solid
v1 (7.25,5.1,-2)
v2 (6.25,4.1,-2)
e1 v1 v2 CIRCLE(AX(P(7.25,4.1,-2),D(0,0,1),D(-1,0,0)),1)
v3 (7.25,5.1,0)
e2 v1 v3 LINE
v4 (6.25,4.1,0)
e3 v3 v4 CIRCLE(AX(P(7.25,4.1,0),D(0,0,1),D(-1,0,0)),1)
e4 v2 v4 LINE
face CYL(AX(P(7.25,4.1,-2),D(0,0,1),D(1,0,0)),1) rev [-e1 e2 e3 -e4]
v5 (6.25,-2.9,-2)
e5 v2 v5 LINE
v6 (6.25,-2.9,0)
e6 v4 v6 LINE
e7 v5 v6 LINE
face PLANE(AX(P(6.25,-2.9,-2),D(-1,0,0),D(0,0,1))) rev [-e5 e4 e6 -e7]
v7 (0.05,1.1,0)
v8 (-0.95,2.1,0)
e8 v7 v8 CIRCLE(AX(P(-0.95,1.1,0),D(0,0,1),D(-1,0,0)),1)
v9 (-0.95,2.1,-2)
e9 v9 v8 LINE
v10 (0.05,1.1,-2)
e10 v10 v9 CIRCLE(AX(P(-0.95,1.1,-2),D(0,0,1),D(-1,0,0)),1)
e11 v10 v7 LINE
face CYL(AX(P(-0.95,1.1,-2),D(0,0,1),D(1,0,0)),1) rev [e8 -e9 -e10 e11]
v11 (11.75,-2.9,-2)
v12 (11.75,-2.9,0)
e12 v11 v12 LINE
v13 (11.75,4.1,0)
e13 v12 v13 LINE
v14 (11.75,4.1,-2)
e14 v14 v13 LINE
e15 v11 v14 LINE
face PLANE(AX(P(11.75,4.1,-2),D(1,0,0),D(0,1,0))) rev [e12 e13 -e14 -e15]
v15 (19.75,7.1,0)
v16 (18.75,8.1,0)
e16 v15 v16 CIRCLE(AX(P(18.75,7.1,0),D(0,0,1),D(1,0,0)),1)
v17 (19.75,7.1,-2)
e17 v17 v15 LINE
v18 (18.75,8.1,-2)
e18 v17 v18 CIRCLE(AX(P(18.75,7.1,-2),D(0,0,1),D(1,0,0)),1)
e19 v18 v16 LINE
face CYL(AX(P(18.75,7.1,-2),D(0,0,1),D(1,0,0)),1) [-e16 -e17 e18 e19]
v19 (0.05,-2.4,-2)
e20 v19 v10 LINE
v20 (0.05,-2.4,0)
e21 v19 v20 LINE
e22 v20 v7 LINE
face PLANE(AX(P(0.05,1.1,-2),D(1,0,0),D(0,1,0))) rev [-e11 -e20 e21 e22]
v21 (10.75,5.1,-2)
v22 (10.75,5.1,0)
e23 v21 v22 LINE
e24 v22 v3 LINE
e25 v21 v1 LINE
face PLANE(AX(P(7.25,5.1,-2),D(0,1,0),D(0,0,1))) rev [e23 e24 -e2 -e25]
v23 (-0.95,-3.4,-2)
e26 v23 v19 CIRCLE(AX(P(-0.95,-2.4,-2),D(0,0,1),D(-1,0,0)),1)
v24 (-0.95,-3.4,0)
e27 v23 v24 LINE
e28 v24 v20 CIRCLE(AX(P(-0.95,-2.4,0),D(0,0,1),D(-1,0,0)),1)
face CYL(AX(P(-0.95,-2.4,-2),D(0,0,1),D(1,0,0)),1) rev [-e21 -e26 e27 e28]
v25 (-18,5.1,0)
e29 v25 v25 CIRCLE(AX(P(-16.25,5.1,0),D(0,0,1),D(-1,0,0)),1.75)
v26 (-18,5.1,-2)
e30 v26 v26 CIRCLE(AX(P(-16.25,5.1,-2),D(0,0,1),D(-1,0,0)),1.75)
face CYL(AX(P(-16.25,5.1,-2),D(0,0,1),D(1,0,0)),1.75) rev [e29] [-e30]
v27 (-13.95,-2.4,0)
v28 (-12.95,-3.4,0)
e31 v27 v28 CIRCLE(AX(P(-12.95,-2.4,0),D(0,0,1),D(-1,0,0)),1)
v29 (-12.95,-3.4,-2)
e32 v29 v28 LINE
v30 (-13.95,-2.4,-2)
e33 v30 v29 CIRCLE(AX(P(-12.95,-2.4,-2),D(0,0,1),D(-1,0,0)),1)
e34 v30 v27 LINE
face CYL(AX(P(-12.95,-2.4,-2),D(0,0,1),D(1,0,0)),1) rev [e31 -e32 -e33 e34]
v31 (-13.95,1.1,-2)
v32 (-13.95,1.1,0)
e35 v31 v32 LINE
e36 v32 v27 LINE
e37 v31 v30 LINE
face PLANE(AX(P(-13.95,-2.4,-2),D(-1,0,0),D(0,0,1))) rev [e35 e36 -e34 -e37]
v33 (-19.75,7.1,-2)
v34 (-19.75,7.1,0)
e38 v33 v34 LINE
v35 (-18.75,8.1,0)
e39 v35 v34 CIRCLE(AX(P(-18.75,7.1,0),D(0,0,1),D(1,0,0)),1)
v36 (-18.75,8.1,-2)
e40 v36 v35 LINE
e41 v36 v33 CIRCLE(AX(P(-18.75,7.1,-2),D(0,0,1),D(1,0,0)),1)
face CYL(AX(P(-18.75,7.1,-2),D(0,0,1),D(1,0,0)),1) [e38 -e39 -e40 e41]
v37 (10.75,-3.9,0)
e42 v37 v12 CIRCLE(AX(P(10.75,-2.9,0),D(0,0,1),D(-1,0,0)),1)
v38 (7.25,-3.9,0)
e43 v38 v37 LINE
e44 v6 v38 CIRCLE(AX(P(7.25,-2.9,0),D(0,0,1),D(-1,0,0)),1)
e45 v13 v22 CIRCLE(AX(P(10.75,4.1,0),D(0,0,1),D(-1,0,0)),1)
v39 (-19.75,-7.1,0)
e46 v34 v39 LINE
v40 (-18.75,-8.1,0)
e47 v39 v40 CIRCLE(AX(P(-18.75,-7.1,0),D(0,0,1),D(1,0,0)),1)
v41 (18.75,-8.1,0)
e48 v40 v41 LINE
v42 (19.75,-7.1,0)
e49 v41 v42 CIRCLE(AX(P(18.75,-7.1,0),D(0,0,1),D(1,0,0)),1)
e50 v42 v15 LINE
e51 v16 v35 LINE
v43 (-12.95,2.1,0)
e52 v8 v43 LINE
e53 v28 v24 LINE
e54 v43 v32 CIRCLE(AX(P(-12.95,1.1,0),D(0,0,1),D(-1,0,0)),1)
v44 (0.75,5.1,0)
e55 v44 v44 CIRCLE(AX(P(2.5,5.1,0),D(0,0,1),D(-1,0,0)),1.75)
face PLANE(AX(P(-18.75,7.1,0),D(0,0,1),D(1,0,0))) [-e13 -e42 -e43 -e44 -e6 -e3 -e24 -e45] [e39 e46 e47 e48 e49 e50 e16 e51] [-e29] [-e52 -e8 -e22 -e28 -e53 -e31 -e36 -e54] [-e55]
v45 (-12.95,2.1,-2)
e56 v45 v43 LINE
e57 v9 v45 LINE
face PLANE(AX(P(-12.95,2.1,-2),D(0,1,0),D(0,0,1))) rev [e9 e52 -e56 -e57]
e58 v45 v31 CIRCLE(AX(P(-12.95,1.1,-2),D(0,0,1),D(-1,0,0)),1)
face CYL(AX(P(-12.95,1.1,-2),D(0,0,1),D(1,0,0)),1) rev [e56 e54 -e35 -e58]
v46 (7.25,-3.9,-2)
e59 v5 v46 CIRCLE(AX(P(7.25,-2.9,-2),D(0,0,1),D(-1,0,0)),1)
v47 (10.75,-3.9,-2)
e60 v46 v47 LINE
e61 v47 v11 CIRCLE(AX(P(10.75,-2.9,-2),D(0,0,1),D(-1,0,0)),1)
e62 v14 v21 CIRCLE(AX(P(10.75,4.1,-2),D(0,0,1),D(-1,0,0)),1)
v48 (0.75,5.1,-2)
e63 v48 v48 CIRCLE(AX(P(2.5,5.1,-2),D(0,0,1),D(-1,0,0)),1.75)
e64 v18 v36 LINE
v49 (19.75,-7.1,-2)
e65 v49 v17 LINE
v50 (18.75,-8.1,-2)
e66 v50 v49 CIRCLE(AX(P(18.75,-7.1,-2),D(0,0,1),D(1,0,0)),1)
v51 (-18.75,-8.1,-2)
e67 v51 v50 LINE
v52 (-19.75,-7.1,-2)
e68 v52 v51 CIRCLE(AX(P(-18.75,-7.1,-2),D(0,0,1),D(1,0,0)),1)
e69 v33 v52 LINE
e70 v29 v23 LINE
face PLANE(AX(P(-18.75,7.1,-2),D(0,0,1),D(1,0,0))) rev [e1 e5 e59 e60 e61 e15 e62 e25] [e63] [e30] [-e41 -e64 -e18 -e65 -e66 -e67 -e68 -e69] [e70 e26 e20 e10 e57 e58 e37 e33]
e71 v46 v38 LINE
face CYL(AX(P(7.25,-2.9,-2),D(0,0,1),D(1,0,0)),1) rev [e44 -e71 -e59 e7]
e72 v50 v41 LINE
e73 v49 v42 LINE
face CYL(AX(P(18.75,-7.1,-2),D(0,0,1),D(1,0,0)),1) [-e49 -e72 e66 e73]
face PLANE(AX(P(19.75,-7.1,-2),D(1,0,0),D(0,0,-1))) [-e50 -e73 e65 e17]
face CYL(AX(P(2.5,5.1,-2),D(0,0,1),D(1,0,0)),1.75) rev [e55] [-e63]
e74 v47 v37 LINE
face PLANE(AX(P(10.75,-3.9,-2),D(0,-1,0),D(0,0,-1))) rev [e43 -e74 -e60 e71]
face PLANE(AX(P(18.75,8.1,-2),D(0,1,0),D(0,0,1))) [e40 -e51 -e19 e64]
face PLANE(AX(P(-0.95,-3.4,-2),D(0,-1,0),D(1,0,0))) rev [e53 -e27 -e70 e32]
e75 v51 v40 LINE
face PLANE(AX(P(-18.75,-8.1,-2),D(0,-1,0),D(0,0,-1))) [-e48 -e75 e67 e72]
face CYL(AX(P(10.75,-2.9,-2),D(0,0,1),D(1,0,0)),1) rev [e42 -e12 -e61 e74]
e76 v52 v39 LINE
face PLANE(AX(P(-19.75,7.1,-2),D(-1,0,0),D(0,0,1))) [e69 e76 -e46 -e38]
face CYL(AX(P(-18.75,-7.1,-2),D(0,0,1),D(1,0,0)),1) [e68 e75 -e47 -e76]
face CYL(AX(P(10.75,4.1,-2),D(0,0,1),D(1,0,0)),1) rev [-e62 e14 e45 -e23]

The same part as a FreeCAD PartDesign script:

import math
import FreeCAD as App
import Part
import Sketcher
Q = App.Units.Quantity

doc = App.newDocument("Part")
body = doc.addObject("PartDesign::Body", "Body")

# Sketch on XY plane
sketch1 = body.newObject("Sketcher::SketchObject", "Sketch")
sketch1.AttachmentSupport = (doc.getObject("XY_Plane"), [""])
sketch1.MapMode = "FlatFace"
sketch1.addGeometry(Part.LineSegment(App.Vector(-19.8, 7.1, 0), App.Vector(-19.8, -7.1, 0)), False)
sketch1.addGeometry(Part.ArcOfCircle(Part.Circle(App.Vector(-18.7, -7.1, 0), App.Vector(0, 0, 1), 1), math.radians(-180), math.radians(-90)), False)
sketch1.addGeometry(Part.LineSegment(App.Vector(-18.8, -8.1, 0), App.Vector(18.8, -8.1, 0)), False)
sketch1.addGeometry(Part.ArcOfCircle(Part.Circle(App.Vector(18.7, -7.1, 0), App.Vector(0, 0, 1), 1), math.radians(-90), math.radians(0)), False)
sketch1.addGeometry(Part.LineSegment(App.Vector(19.8, -7.1, 0), App.Vector(19.8, 7.1, 0)), False)
sketch1.addGeometry(Part.ArcOfCircle(Part.Circle(App.Vector(18.7, 7.1, 0), App.Vector(0, 0, 1), 1), math.radians(0), math.radians(90)), False)
sketch1.addGeometry(Part.LineSegment(App.Vector(18.8, 8.1, 0), App.Vector(-18.8, 8.1, 0)), False)
sketch1.addGeometry(Part.ArcOfCircle(Part.Circle(App.Vector(-18.7, 7.1, 0), App.Vector(0, 0, 1), 1), math.radians(90), math.radians(180)), False)
sketch1.addGeometry(Part.ArcOfCircle(Part.Circle(App.Vector(-12.9, 1.1, 0), App.Vector(0, 0, 1), 1), math.radians(90), math.radians(180)), False)
sketch1.addGeometry(Part.LineSegment(App.Vector(-12.9, 2.1, 0), App.Vector(-0.9, 2.1, 0)), False)
sketch1.addGeometry(Part.ArcOfCircle(Part.Circle(App.Vector(-1, 1.1, 0), App.Vector(0, 0, 1), 1), math.radians(0), math.radians(90)), False)
sketch1.addGeometry(Part.LineSegment(App.Vector(0.1, 1.1, 0), App.Vector(0.1, -2.4, 0)), False)
sketch1.addGeometry(Part.ArcOfCircle(Part.Circle(App.Vector(-1, -2.4, 0), App.Vector(0, 0, 1), 1), math.radians(-90), math.radians(0)), False)
sketch1.addGeometry(Part.LineSegment(App.Vector(-0.9, -3.4, 0), App.Vector(-12.9, -3.4, 0)), False)
sketch1.addGeometry(Part.ArcOfCircle(Part.Circle(App.Vector(-12.9, -2.4, 0), App.Vector(0, 0, 1), 1), math.radians(-180), math.radians(-90)), False)
sketch1.addGeometry(Part.LineSegment(App.Vector(-13.9, -2.4, 0), App.Vector(-13.9, 1.1, 0)), False)
sketch1.addGeometry(Part.ArcOfCircle(Part.Circle(App.Vector(7.3, 4.1, 0), App.Vector(0, 0, 1), 1), math.radians(90), math.radians(180)), False)
sketch1.addGeometry(Part.LineSegment(App.Vector(7.2, 5.1, 0), App.Vector(10.8, 5.1, 0)), False)
sketch1.addGeometry(Part.ArcOfCircle(Part.Circle(App.Vector(10.7, 4.1, 0), App.Vector(0, 0, 1), 1), math.radians(0), math.radians(90)), False)
sketch1.addGeometry(Part.LineSegment(App.Vector(11.8, 4.1, 0), App.Vector(11.8, -2.9, 0)), False)
sketch1.addGeometry(Part.ArcOfCircle(Part.Circle(App.Vector(10.7, -2.9, 0), App.Vector(0, 0, 1), 1), math.radians(-90), math.radians(0)), False)
sketch1.addGeometry(Part.LineSegment(App.Vector(10.8, -3.9, 0), App.Vector(7.2, -3.9, 0)), False)
sketch1.addGeometry(Part.ArcOfCircle(Part.Circle(App.Vector(7.3, -2.9, 0), App.Vector(0, 0, 1), 1), math.radians(-180), math.radians(-90)), False)
sketch1.addGeometry(Part.LineSegment(App.Vector(6.2, -2.9, 0), App.Vector(6.2, 4.1, 0)), False)
sketch1.addGeometry(Part.Circle(App.Vector(-16.2, 5.1, 0), App.Vector(0, 0, 1), 1.8), False)
sketch1.addGeometry(Part.Circle(App.Vector(2.5, 5.1, 0), App.Vector(0, 0, 1), 1.8), False)
sketch1.addConstraint(Sketcher.Constraint("Tangent", 0, 2, 1, 1))
sketch1.addConstraint(Sketcher.Constraint("Tangent", 1, 2, 2, 1))
sketch1.addConstraint(Sketcher.Constraint("Tangent", 2, 2, 3, 1))
sketch1.addConstraint(Sketcher.Constraint("Tangent", 3, 2, 4, 1))
sketch1.addConstraint(Sketcher.Constraint("Tangent", 4, 2, 5, 1))
sketch1.addConstraint(Sketcher.Constraint("Tangent", 5, 2, 6, 1))
sketch1.addConstraint(Sketcher.Constraint("Tangent", 6, 2, 7, 1))
sketch1.addConstraint(Sketcher.Constraint("Tangent", 7, 2, 0, 1))
sketch1.addConstraint(Sketcher.Constraint("Tangent", 8, 1, 9, 1))
sketch1.addConstraint(Sketcher.Constraint("Tangent", 9, 2, 10, 2))
sketch1.addConstraint(Sketcher.Constraint("Tangent", 10, 1, 11, 1))
sketch1.addConstraint(Sketcher.Constraint("Tangent", 11, 2, 12, 2))
sketch1.addConstraint(Sketcher.Constraint("Tangent", 12, 1, 13, 1))
sketch1.addConstraint(Sketcher.Constraint("Tangent", 13, 2, 14, 2))
sketch1.addConstraint(Sketcher.Constraint("Tangent", 14, 1, 15, 1))
sketch1.addConstraint(Sketcher.Constraint("Tangent", 15, 2, 8, 2))
sketch1.addConstraint(Sketcher.Constraint("Tangent", 16, 1, 17, 1))
sketch1.addConstraint(Sketcher.Constraint("Tangent", 17, 2, 18, 2))
sketch1.addConstraint(Sketcher.Constraint("Tangent", 18, 1, 19, 1))
sketch1.addConstraint(Sketcher.Constraint("Tangent", 19, 2, 20, 2))
sketch1.addConstraint(Sketcher.Constraint("Tangent", 20, 1, 21, 1))
sketch1.addConstraint(Sketcher.Constraint("Tangent", 21, 2, 22, 2))
sketch1.addConstraint(Sketcher.Constraint("Tangent", 22, 1, 23, 1))
sketch1.addConstraint(Sketcher.Constraint("Tangent", 23, 2, 16, 2))
sketch1.addConstraint(Sketcher.Constraint("Vertical", 0))
sketch1.addConstraint(Sketcher.Constraint("Horizontal", 2))
sketch1.addConstraint(Sketcher.Constraint("Vertical", 4))
sketch1.addConstraint(Sketcher.Constraint("Horizontal", 6))
sketch1.addConstraint(Sketcher.Constraint("Horizontal", 9))
sketch1.addConstraint(Sketcher.Constraint("Vertical", 11))
sketch1.addConstraint(Sketcher.Constraint("Horizontal", 13))
sketch1.addConstraint(Sketcher.Constraint("Vertical", 15))
sketch1.addConstraint(Sketcher.Constraint("Horizontal", 17))
sketch1.addConstraint(Sketcher.Constraint("Vertical", 19))
sketch1.addConstraint(Sketcher.Constraint("Horizontal", 21))
sketch1.addConstraint(Sketcher.Constraint("Vertical", 23))
sketch1.addConstraint(Sketcher.Constraint("Equal", 1, 3))
sketch1.addConstraint(Sketcher.Constraint("Equal", 3, 5))
sketch1.addConstraint(Sketcher.Constraint("Equal", 5, 7))
sketch1.addConstraint(Sketcher.Constraint("Equal", 7, 8))
sketch1.addConstraint(Sketcher.Constraint("Equal", 8, 10))
sketch1.addConstraint(Sketcher.Constraint("Equal", 10, 12))
sketch1.addConstraint(Sketcher.Constraint("Equal", 12, 14))
sketch1.addConstraint(Sketcher.Constraint("Equal", 14, 16))
sketch1.addConstraint(Sketcher.Constraint("Equal", 16, 18))
sketch1.addConstraint(Sketcher.Constraint("Equal", 18, 20))
sketch1.addConstraint(Sketcher.Constraint("Equal", 20, 22))
sketch1.addConstraint(Sketcher.Constraint("Equal", 24, 25))
sketch1.addConstraint(Sketcher.Constraint("Symmetric", 1, 3, 5, 3, -1, 1))
sketch1.addConstraint(Sketcher.Constraint("Horizontal", 24, 3, 25, 3))
sketch1.addConstraint(Sketcher.Constraint("Horizontal", 25, 3, 16, 1))
sketch1.addConstraint(Sketcher.Constraint("Equal", 21, 11))
sketch1.addConstraint(Sketcher.Constraint("Radius", 1, Q("1 mm")))
sketch1.addConstraint(Sketcher.Constraint("Diameter", 24, Q("3.5 mm")))
sketch1.addConstraint(Sketcher.Constraint("DistanceX", 9, 1, 9, 2, Q("12 mm")))
sketch1.addConstraint(Sketcher.Constraint("DistanceY", 19, 2, 19, 1, Q("7 mm")))
sketch1.addConstraint(Sketcher.Constraint("DistanceX", 2, 1, 2, 2, Q("37.5 mm")))
sketch1.addConstraint(Sketcher.Constraint("DistanceX", 17, 1, 17, 2, Q("3.5 mm")))
sketch1.addConstraint(Sketcher.Constraint("DistanceY", 0, 2, 0, 1, Q("14.2 mm")))
sketch1.addConstraint(Sketcher.Constraint("DistanceY", 8, 3, 7, 3, Q("6 mm")))
sketch1.addConstraint(Sketcher.Constraint("DistanceY", 10, 3, 16, 3, Q("3 mm")))
sketch1.addConstraint(Sketcher.Constraint("DistanceX", 18, 3, 5, 3, Q("8 mm")))
sketch1.addConstraint(Sketcher.Constraint("DistanceX", -1, 1, 25, 3, Q("2.5 mm")))
sketch1.addConstraint(Sketcher.Constraint("DistanceX", 7, 3, 8, 3, Q("5.8 mm")))
sketch1.addConstraint(Sketcher.Constraint("DistanceX", 7, 3, 24, 3, Q("2.5 mm")))
pad1 = body.newObject("PartDesign::Pad", "Pad")
pad1.Profile = sketch1
pad1.Length = 2
pad1.Reversed = True

doc.recompute()
